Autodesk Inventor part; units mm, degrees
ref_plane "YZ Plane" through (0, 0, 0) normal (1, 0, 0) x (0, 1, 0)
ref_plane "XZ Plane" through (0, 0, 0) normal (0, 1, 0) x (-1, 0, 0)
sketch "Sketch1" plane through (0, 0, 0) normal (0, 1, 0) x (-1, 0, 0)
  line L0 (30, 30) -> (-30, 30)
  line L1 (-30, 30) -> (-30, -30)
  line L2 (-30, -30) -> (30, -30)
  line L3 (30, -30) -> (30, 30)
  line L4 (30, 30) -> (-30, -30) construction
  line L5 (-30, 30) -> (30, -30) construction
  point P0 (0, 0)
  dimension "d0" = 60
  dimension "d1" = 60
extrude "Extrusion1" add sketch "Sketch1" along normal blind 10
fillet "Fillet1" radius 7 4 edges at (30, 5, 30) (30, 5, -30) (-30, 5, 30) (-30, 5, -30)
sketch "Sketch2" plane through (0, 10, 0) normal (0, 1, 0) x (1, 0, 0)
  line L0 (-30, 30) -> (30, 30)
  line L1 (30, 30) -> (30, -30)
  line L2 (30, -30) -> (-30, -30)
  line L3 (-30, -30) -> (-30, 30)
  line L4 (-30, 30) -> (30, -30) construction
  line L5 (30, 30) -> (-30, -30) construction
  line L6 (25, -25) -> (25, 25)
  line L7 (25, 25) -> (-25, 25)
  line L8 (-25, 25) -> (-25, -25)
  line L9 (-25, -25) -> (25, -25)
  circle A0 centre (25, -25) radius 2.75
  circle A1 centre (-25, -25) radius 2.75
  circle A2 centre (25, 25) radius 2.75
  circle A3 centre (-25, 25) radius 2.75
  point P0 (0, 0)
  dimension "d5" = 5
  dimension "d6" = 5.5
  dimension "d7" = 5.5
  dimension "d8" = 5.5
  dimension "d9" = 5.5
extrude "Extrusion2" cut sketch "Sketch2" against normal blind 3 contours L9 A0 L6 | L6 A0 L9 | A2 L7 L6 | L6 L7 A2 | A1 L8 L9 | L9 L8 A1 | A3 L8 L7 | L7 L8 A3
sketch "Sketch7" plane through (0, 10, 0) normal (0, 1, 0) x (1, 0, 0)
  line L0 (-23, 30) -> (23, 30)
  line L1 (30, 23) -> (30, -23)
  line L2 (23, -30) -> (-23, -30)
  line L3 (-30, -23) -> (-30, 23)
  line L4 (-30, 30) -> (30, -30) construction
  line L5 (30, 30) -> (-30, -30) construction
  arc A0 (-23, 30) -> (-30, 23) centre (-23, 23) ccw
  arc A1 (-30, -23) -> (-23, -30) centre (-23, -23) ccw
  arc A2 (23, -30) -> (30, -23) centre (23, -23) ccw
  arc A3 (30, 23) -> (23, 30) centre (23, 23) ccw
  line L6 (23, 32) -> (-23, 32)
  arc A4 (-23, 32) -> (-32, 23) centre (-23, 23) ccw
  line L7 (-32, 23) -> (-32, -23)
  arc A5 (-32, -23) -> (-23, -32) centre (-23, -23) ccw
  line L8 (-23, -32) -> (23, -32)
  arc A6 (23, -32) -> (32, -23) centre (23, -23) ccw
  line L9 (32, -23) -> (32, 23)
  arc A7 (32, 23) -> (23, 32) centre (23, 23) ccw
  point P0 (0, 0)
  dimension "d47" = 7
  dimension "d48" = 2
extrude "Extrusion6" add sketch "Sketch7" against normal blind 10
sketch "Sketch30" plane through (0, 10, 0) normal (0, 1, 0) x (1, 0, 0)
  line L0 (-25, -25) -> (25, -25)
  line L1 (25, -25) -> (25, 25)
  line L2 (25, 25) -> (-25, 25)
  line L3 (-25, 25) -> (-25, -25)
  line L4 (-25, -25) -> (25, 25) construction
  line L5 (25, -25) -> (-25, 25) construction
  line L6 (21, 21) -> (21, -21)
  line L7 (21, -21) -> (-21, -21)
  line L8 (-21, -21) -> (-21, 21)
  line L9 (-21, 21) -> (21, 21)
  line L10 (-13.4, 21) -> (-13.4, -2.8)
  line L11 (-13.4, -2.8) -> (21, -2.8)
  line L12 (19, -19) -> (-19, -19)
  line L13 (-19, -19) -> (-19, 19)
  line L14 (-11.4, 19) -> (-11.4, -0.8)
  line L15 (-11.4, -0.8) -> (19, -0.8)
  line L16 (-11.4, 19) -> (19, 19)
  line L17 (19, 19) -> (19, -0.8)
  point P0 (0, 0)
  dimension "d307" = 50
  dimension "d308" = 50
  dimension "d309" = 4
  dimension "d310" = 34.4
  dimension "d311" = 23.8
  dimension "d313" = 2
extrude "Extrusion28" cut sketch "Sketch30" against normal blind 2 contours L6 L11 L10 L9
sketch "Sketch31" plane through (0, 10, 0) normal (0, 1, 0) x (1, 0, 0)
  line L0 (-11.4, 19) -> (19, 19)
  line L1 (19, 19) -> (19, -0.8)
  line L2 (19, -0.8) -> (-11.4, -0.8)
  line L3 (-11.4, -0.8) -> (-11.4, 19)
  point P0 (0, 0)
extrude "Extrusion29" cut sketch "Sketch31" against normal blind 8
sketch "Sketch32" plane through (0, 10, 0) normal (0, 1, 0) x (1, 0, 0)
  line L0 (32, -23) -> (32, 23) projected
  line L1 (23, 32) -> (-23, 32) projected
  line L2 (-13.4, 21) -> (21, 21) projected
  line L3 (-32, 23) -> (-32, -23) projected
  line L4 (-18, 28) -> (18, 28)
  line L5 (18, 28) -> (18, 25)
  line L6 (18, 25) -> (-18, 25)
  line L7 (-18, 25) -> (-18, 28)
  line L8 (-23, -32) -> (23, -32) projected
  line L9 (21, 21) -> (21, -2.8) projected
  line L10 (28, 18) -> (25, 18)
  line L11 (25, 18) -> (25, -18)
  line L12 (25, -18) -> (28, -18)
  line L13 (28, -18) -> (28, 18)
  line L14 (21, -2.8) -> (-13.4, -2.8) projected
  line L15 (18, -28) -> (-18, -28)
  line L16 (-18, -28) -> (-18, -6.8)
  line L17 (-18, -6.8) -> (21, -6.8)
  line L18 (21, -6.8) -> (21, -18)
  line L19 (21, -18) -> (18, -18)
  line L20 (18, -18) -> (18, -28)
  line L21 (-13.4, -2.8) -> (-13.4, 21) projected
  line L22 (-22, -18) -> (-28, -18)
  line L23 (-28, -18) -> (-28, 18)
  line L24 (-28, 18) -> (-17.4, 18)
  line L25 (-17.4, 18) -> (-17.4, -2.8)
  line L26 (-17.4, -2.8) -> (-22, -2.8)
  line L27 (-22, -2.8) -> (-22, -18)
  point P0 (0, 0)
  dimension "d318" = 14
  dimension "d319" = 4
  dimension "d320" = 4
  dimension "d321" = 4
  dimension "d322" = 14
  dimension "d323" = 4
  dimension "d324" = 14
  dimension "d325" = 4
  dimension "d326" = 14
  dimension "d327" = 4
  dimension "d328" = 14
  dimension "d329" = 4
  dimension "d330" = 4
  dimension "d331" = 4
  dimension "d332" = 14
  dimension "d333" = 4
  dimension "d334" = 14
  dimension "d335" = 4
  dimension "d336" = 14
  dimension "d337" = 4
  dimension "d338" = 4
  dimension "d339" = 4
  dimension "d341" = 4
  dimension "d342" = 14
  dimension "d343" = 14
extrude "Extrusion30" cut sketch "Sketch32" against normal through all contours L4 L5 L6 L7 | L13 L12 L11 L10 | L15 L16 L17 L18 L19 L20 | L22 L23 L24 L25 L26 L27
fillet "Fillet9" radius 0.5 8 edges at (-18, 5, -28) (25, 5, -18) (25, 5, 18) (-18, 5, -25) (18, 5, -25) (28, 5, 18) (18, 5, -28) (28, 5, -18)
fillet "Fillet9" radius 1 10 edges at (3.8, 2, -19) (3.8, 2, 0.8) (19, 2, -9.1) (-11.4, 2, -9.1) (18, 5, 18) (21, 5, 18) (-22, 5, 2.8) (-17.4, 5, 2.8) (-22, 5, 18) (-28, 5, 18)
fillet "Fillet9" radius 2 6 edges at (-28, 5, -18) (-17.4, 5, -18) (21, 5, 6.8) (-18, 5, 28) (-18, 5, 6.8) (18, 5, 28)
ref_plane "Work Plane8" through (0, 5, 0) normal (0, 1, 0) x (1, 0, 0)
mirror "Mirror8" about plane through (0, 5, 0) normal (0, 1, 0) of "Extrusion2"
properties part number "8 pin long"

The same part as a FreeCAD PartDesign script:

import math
import FreeCAD as App
import Part
import Sketcher
Q = App.Units.Quantity


def edges_at(feature, points):
    """Names of the edges that pass closest to the given points."""
    edges = feature.Shape.Edges
    near = lambda p: min(range(len(edges)), key=lambda i: edges[i].distToShape(Part.Vertex(*p))[0])
    return sorted({f"Edge{near(p) + 1}" for p in points})

doc = App.newDocument("Part")
params = doc.addObject("Spreadsheet::Sheet", "Params")
for row, (alias, value) in enumerate([
    ("sketch1_width", "60 mm"),
    ("pad1_length", "10 mm"),
    ("fillet_radius", "7 mm"),
    ("sketch2_diameter", "5.5 mm"),
    ("pocket1_length", "3 mm"),
    ("sketch3_radius", "7 mm"),
    ("sketch3_radius2", "9 mm"),
    ("sketch3_width", "46 mm"),
    ("pad2_length", "10 mm"),
    ("sketch4_width", "34.4 mm"),
    ("sketch4_height", "23.8 mm"),
    ("pocket2_length", "2 mm"),
    ("sketch5_width", "30.4 mm"),
    ("sketch5_height", "19.8 mm"),
    ("pocket3_length", "8 mm"),
    ("sketch6_width", "36 mm"),
    ("sketch6_width2", "3 mm"),
    ("sketch6_height", "10 mm"),
    ("sketch6_width3", "4.6 mm"),
    ("sketch6_height2", "11.2 mm"),
    ("fillet2_radius", "0.5 mm"),
    ("fillet3_radius", "1 mm"),
    ("fillet4_radius", "2 mm"),
], start=1):
    params.set(f"A{row}", alias)
    params.set(f"B{row}", "=" + value)
    params.setAlias(f"B{row}", alias)

body = doc.addObject("PartDesign::Body", "Body")

# Sketch on XZ plane
sketch1 = doc.addObject("Sketcher::SketchObject", "Sketch")
body.addObject(sketch1)
sketch1.AttachmentSupport = (doc.XZ_Plane, [""])
sketch1.MapMode = "FlatFace"
sketch1.addGeometry(Part.LineSegment(App.Vector(-30, -30, 0), App.Vector(-30, 30, 0)), False)
sketch1.addGeometry(Part.LineSegment(App.Vector(-30, 30, 0), App.Vector(30, 30, 0)), False)
sketch1.addGeometry(Part.LineSegment(App.Vector(30, 30, 0), App.Vector(30, -30, 0)), False)
sketch1.addGeometry(Part.LineSegment(App.Vector(30, -30, 0), App.Vector(-30, -30, 0)), False)
sketch1.addConstraint(Sketcher.Constraint("Coincident", 0, 2, 1, 1))
sketch1.addConstraint(Sketcher.Constraint("Coincident", 1, 2, 2, 1))
sketch1.addConstraint(Sketcher.Constraint("Coincident", 2, 2, 3, 1))
sketch1.addConstraint(Sketcher.Constraint("Coincident", 3, 2, 0, 1))
sketch1.addConstraint(Sketcher.Constraint("Vertical", 0))
sketch1.addConstraint(Sketcher.Constraint("Horizontal", 1))
sketch1.addConstraint(Sketcher.Constraint("Vertical", 2))
sketch1.addConstraint(Sketcher.Constraint("Horizontal", 3))
sketch1.addConstraint(Sketcher.Constraint("Symmetric", 0, 2, 2, 2, -1, 1))
sketch1.addConstraint(Sketcher.Constraint("Equal", 3, 0))
sketch1.addConstraint(Sketcher.Constraint("DistanceX", 1, 1, 1, 2, Q("60 mm")))
sketch1.setExpression("Constraints[10]", "Params.sketch1_width")
pad1 = doc.addObject("PartDesign::Pad", "Pad")
body.addObject(pad1)
pad1.Profile = sketch1
pad1.setExpression("Length", "Params.pad1_length")
pad1.Reversed = True
doc.recompute()

fillet = doc.addObject("PartDesign::Fillet", "Fillet")
body.addObject(fillet)
fillet.Base = (pad1, edges_at(pad1, [
    (30, 5, 30),
    (30, 5, -30),
    (-30, 5, 30),
    (-30, 5, -30),
]))
fillet.setExpression("Radius", "Params.fillet_radius")

# Sketch on XZ plane
sketch2 = doc.addObject("Sketcher::SketchObject", "Sketch001")
body.addObject(sketch2)
sketch2.AttachmentSupport = (doc.XZ_Plane, [""])
sketch2.MapMode = "FlatFace"
sketch2.AttachmentOffset = App.Placement(App.Vector(0, 0, -10), App.Rotation())
sketch2.addGeometry(Part.Circle(App.Vector(25, 25, 0), App.Vector(0, 0, 1), 2.8), False)
sketch2.addGeometry(Part.Circle(App.Vector(25, -25, 0), App.Vector(0, 0, 1), 2.8), False)
sketch2.addGeometry(Part.Circle(App.Vector(-25, 25, 0), App.Vector(0, 0, 1), 2.8), False)
sketch2.addGeometry(Part.Circle(App.Vector(-25, -25, 0), App.Vector(0, 0, 1), 2.8), False)
sketch2.addConstraint(Sketcher.Constraint("Equal", 0, 1))
sketch2.addConstraint(Sketcher.Constraint("Equal", 1, 2))
sketch2.addConstraint(Sketcher.Constraint("Equal", 2, 3))
sketch2.addConstraint(Sketcher.Constraint("Symmetric", 1, 3, 2, 3, -1, 1))
sketch2.addConstraint(Sketcher.Constraint("Symmetric", 0, 3, 3, 3, -1, 1))
sketch2.addConstraint(Sketcher.Constraint("Symmetric", 0, 3, 2, 3, -2))
sketch2.addConstraint(Sketcher.Constraint("Diameter", 0, Q("5.5 mm")))
sketch2.addConstraint(Sketcher.Constraint("DistanceX", -1, 1, 0, 3, Q("25 mm")))
sketch2.addConstraint(Sketcher.Constraint("DistanceY", -1, 1, 0, 3, Q("25 mm")))
sketch2.setExpression("Constraints[6]", "Params.sketch2_diameter")
pocket1 = doc.addObject("PartDesign::Pocket", "Pocket")
body.addObject(pocket1)
pocket1.Profile = sketch2
pocket1.setExpression("Length", "Params.pocket1_length")
pocket1.Reversed = True

# Sketch on XZ plane
sketch3 = doc.addObject("Sketcher::SketchObject", "Sketch002")
body.addObject(sketch3)
sketch3.AttachmentSupport = (doc.XZ_Plane, [""])
sketch3.MapMode = "FlatFace"
sketch3.AttachmentOffset = App.Placement(App.Vector(0, 0, -10), App.Rotation())
sketch3.addGeometry(Part.ArcOfCircle(Part.Circle(App.Vector(23, -23, 0), App.Vector(0, 0, 1), 9), math.radians(-90), math.radians(0)), False)
sketch3.addGeometry(Part.LineSegment(App.Vector(23, -32, 0), App.Vector(-23, -32, 0)), False)
sketch3.addGeometry(Part.ArcOfCircle(Part.Circle(App.Vector(-23, -23, 0), App.Vector(0, 0, 1), 9), math.radians(180), math.radians(270)), False)
sketch3.addGeometry(Part.LineSegment(App.Vector(-32, -23, 0), App.Vector(-32, 23, 0)), False)
sketch3.addGeometry(Part.ArcOfCircle(Part.Circle(App.Vector(-23, 23, 0), App.Vector(0, 0, 1), 9), math.radians(90), math.radians(180)), False)
sketch3.addGeometry(Part.LineSegment(App.Vector(-23, 32, 0), App.Vector(23, 32, 0)), False)
sketch3.addGeometry(Part.ArcOfCircle(Part.Circle(App.Vector(23, 23, 0), App.Vector(0, 0, 1), 9), math.radians(0), math.radians(90)), False)
sketch3.addGeometry(Part.LineSegment(App.Vector(32, 23, 0), App.Vector(32, -23, 0)), False)
sketch3.addGeometry(Part.ArcOfCircle(Part.Circle(App.Vector(-23, -23, 0), App.Vector(0, 0, 1), 7), math.radians(180), math.radians(270)), False)
sketch3.addGeometry(Part.LineSegment(App.Vector(-23, -30, 0), App.Vector(23, -30, 0)), False)
sketch3.addGeometry(Part.ArcOfCircle(Part.Circle(App.Vector(23, -23, 0), App.Vector(0, 0, 1), 7), math.radians(-90), math.radians(0)), False)
sketch3.addGeometry(Part.LineSegment(App.Vector(30, -23, 0), App.Vector(30, 23, 0)), False)
sketch3.addGeometry(Part.ArcOfCircle(Part.Circle(App.Vector(23, 23, 0), App.Vector(0, 0, 1), 7), math.radians(0), math.radians(90)), False)
sketch3.addGeometry(Part.LineSegment(App.Vector(23, 30, 0), App.Vector(-23, 30, 0)), False)
sketch3.addGeometry(Part.ArcOfCircle(Part.Circle(App.Vector(-23, 23, 0), App.Vector(0, 0, 1), 7), math.radians(90), math.radians(180)), False)
sketch3.addGeometry(Part.LineSegment(App.Vector(-30, 23, 0), App.Vector(-30, -23, 0)), False)
sketch3.addConstraint(Sketcher.Constraint("Tangent", 0, 1, 1, 1))
sketch3.addConstraint(Sketcher.Constraint("Tangent", 1, 2, 2, 2))
sketch3.addConstraint(Sketcher.Constraint("Tangent", 2, 1, 3, 1))
sketch3.addConstraint(Sketcher.Constraint("Tangent", 3, 2, 4, 2))
sketch3.addConstraint(Sketcher.Constraint("Tangent", 4, 1, 5, 1))
sketch3.addConstraint(Sketcher.Constraint("Tangent", 5, 2, 6, 2))
sketch3.addConstraint(Sketcher.Constraint("Tangent", 6, 1, 7, 1))
sketch3.addConstraint(Sketcher.Constraint("Tangent", 7, 2, 0, 2))
sketch3.addConstraint(Sketcher.Constraint("Tangent", 8, 2, 9, 1))
sketch3.addConstraint(Sketcher.Constraint("Tangent", 9, 2, 10, 1))
sketch3.addConstraint(Sketcher.Constraint("Tangent", 10, 2, 11, 1))
sketch3.addConstraint(Sketcher.Constraint("Tangent", 11, 2, 12, 1))
sketch3.addConstraint(Sketcher.Constraint("Tangent", 12, 2, 13, 1))
sketch3.addConstraint(Sketcher.Constraint("Tangent", 13, 2, 14, 1))
sketch3.addConstraint(Sketcher.Constraint("Tangent", 14, 2, 15, 1))
sketch3.addConstraint(Sketcher.Constraint("Tangent", 15, 2, 8, 1))
sketch3.addConstraint(Sketcher.Constraint("Horizontal", 1))
sketch3.addConstraint(Sketcher.Constraint("Vertical", 3))
sketch3.addConstraint(Sketcher.Constraint("Horizontal", 5))
sketch3.addConstraint(Sketcher.Constraint("Vertical", 7))
sketch3.addConstraint(Sketcher.Constraint("Horizontal", 9))
sketch3.addConstraint(Sketcher.Constraint("Vertical", 11))
sketch3.addConstraint(Sketcher.Constraint("Horizontal", 13))
sketch3.addConstraint(Sketcher.Constraint("Vertical", 15))
sketch3.addConstraint(Sketcher.Constraint("Coincident", 8, 3, 2, 3))
sketch3.addConstraint(Sketcher.Constraint("Coincident", 10, 3, 0, 3))
sketch3.addConstraint(Sketcher.Constraint("Coincident", 12, 3, 6, 3))
sketch3.addConstraint(Sketcher.Constraint("Equal", 0, 2))
sketch3.addConstraint(Sketcher.Constraint("Equal", 2, 4))
sketch3.addConstraint(Sketcher.Constraint("Equal", 4, 6))
sketch3.addConstraint(Sketcher.Constraint("Equal", 12, 14))
sketch3.addConstraint(Sketcher.Constraint("Symmetric", 0, 3, 4, 3, -1, 1))
sketch3.addConstraint(Sketcher.Constraint("Equal", 13, 3))
sketch3.addConstraint(Sketcher.Constraint("Radius", 8, Q("7 mm")))
sketch3.addConstraint(Sketcher.Constraint("Radius", 0, Q("9 mm")))
sketch3.addConstraint(Sketcher.Constraint("DistanceX", 1, 2, 1, 1, Q("46 mm")))
sketch3.setExpression("Constraints[33]", "Params.sketch3_radius")
sketch3.setExpression("Constraints[34]", "Params.sketch3_radius2")
sketch3.setExpression("Constraints[35]", "Params.sketch3_width")
pad2 = doc.addObject("PartDesign::Pad", "Pad001")
body.addObject(pad2)
pad2.Profile = sketch3
pad2.setExpression("Length", "Params.pad2_length")

# Sketch on XZ plane
sketch4 = doc.addObject("Sketcher::SketchObject", "Sketch003")
body.addObject(sketch4)
sketch4.AttachmentSupport = (doc.XZ_Plane, [""])
sketch4.MapMode = "FlatFace"
sketch4.AttachmentOffset = App.Placement(App.Vector(0, 0, -10), App.Rotation())
sketch4.addGeometry(Part.LineSegment(App.Vector(21, 3, 0), App.Vector(21, -21, 0)), False)
sketch4.addGeometry(Part.LineSegment(App.Vector(21, -21, 0), App.Vector(-13, -21, 0)), False)
sketch4.addGeometry(Part.LineSegment(App.Vector(-13, -21, 0), App.Vector(-13, 3, 0)), False)
sketch4.addGeometry(Part.LineSegment(App.Vector(-13, 3, 0), App.Vector(21, 3, 0)), False)
sketch4.addGeometry(Part.LineSegment(App.Vector(-11, 1, 0), App.Vector(-11, -19, 0)), False)
sketch4.addGeometry(Part.LineSegment(App.Vector(-11, -19, 0), App.Vector(19, -19, 0)), False)
sketch4.addGeometry(Part.LineSegment(App.Vector(19, -19, 0), App.Vector(19, 1, 0)), False)
sketch4.addGeometry(Part.LineSegment(App.Vector(19, 1, 0), App.Vector(-11, 1, 0)), False)
sketch4.addConstraint(Sketcher.Constraint("Coincident", 0, 2, 1, 1))
sketch4.addConstraint(Sketcher.Constraint("Coincident", 1, 2, 2, 1))
sketch4.addConstraint(Sketcher.Constraint("Coincident", 2, 2, 3, 1))
sketch4.addConstraint(Sketcher.Constraint("Coincident", 3, 2, 0, 1))
sketch4.addConstraint(Sketcher.Constraint("Coincident", 4, 2, 5, 1))
sketch4.addConstraint(Sketcher.Constraint("Coincident", 5, 2, 6, 1))
sketch4.addConstraint(Sketcher.Constraint("Coincident", 6, 2, 7, 1))
sketch4.addConstraint(Sketcher.Constraint("Coincident", 7, 2, 4, 1))
sketch4.addConstraint(Sketcher.Constraint("Vertical", 0))
sketch4.addConstraint(Sketcher.Constraint("Horizontal", 1))
sketch4.addConstraint(Sketcher.Constraint("Vertical", 2))
sketch4.addConstraint(Sketcher.Constraint("Horizontal", 3))
sketch4.addConstraint(Sketcher.Constraint("Vertical", 4))
sketch4.addConstraint(Sketcher.Constraint("Horizontal", 5))
sketch4.addConstraint(Sketcher.Constraint("Vertical", 6))
sketch4.addConstraint(Sketcher.Constraint("Horizontal", 7))
sketch4.addConstraint(Sketcher.Constraint("DistanceX", 1, 2, 1, 1, Q("34.4 mm")))
sketch4.addConstraint(Sketcher.Constraint("DistanceY", 0, 2, 0, 1, Q("23.8 mm")))
sketch4.addConstraint(Sketcher.Constraint("DistanceX", 1, 2, 4, 2, Q("2 mm")))
sketch4.addConstraint(Sketcher.Constraint("DistanceY", 1, 2, 4, 2, Q("2 mm")))
sketch4.addConstraint(Sketcher.Constraint("DistanceX", 5, 2, 0, 2, Q("2 mm")))
sketch4.addConstraint(Sketcher.Constraint("DistanceY", 6, 2, 3, 2, Q("2 mm")))
sketch4.addConstraint(Sketcher.Constraint("DistanceX", -1, 1, 0, 2, Q("21 mm")))
sketch4.addConstraint(Sketcher.Constraint("DistanceY", 0, 2, -1, 1, Q("21 mm")))
sketch4.setExpression("Constraints[16]", "Params.sketch4_width")
sketch4.setExpression("Constraints[17]", "Params.sketch4_height")
pocket2 = doc.addObject("PartDesign::Pocket", "Pocket001")
body.addObject(pocket2)
pocket2.Profile = sketch4
pocket2.setExpression("Length", "Params.pocket2_length")
pocket2.Reversed = True

# Sketch on XZ plane
sketch5 = doc.addObject("Sketcher::SketchObject", "Sketch004")
body.addObject(sketch5)
sketch5.AttachmentSupport = (doc.XZ_Plane, [""])
sketch5.MapMode = "FlatFace"
sketch5.AttachmentOffset = App.Placement(App.Vector(0, 0, -10), App.Rotation())
sketch5.addGeometry(Part.LineSegment(App.Vector(19, -19, 0), App.Vector(-11, -19, 0)), False)
sketch5.addGeometry(Part.LineSegment(App.Vector(-11, -19, 0), App.Vector(-11, 1, 0)), False)
sketch5.addGeometry(Part.LineSegment(App.Vector(-11, 1, 0), App.Vector(19, 1, 0)), False)
sketch5.addGeometry(Part.LineSegment(App.Vector(19, 1, 0), App.Vector(19, -19, 0)), False)
sketch5.addConstraint(Sketcher.Constraint("Coincident", 0, 2, 1, 1))
sketch5.addConstraint(Sketcher.Constraint("Coincident", 1, 2, 2, 1))
sketch5.addConstraint(Sketcher.Constraint("Coincident", 2, 2, 3, 1))
sketch5.addConstraint(Sketcher.Constraint("Coincident", 3, 2, 0, 1))
sketch5.addConstraint(Sketcher.Constraint("Horizontal", 0))
sketch5.addConstraint(Sketcher.Constraint("Vertical", 1))
sketch5.addConstraint(Sketcher.Constraint("Horizontal", 2))
sketch5.addConstraint(Sketcher.Constraint("Vertical", 3))
sketch5.addConstraint(Sketcher.Constraint("DistanceX", 0, 2, 0, 1, Q("30.4 mm")))
sketch5.addConstraint(Sketcher.Constraint("DistanceY", 1, 1, 1, 2, Q("19.8 mm")))
sketch5.addConstraint(Sketcher.Constraint("DistanceY", 0, 2, -1, 1, Q("19 mm")))
sketch5.addConstraint(Sketcher.Constraint("DistanceX", -1, 1, 2, 2, Q("19 mm")))
sketch5.setExpression("Constraints[8]", "Params.sketch5_width")
sketch5.setExpression("Constraints[9]", "Params.sketch5_height")
pocket3 = doc.addObject("PartDesign::Pocket", "Pocket002")
body.addObject(pocket3)
pocket3.Profile = sketch5
pocket3.setExpression("Length", "Params.pocket3_length")
pocket3.Reversed = True

# Sketch on XZ plane
sketch6 = doc.addObject("Sketcher::SketchObject", "Sketch005")
body.addObject(sketch6)
sketch6.AttachmentSupport = (doc.XZ_Plane, [""])
sketch6.MapMode = "FlatFace"
sketch6.AttachmentOffset = App.Placement(App.Vector(0, 0, -10), App.Rotation())
sketch6.addGeometry(Part.LineSegment(App.Vector(18, -28, 0), App.Vector(-18, -28, 0)), False)
sketch6.addGeometry(Part.LineSegment(App.Vector(-18, -28, 0), App.Vector(-18, -25, 0)), False)
sketch6.addGeometry(Part.LineSegment(App.Vector(-18, -25, 0), App.Vector(18, -25, 0)), False)
sketch6.addGeometry(Part.LineSegment(App.Vector(18, -25, 0), App.Vector(18, -28, 0)), False)
sketch6.addGeometry(Part.LineSegment(App.Vector(28, 18, 0), App.Vector(28, -18, 0)), False)
sketch6.addGeometry(Part.LineSegment(App.Vector(28, -18, 0), App.Vector(25, -18, 0)), False)
sketch6.addGeometry(Part.LineSegment(App.Vector(25, -18, 0), App.Vector(25, 18, 0)), False)
sketch6.addGeometry(Part.LineSegment(App.Vector(25, 18, 0), App.Vector(28, 18, 0)), False)
sketch6.addGeometry(Part.LineSegment(App.Vector(-18, 28, 0), App.Vector(18, 28, 0)), False)
sketch6.addGeometry(Part.LineSegment(App.Vector(18, 28, 0), App.Vector(18, 18, 0)), False)
sketch6.addGeometry(Part.LineSegment(App.Vector(18, 18, 0), App.Vector(21, 18, 0)), False)
sketch6.addGeometry(Part.LineSegment(App.Vector(21, 18, 0), App.Vector(21, 6.8, 0)), False)
sketch6.addGeometry(Part.LineSegment(App.Vector(21, 6.8, 0), App.Vector(-18, 6.8, 0)), False)
sketch6.addGeometry(Part.LineSegment(App.Vector(-18, 6.8, 0), App.Vector(-18, 28, 0)), False)
sketch6.addGeometry(Part.LineSegment(App.Vector(-28, 18, 0), App.Vector(-22, 18, 0)), False)
sketch6.addGeometry(Part.LineSegment(App.Vector(-22, 18, 0), App.Vector(-22, 2.8, 0)), False)
sketch6.addGeometry(Part.LineSegment(App.Vector(-22, 2.8, 0), App.Vector(-17.4, 2.8, 0)), False)
sketch6.addGeometry(Part.LineSegment(App.Vector(-17.4, 2.8, 0), App.Vector(-17.4, -18, 0)), False)
sketch6.addGeometry(Part.LineSegment(App.Vector(-17.4, -18, 0), App.Vector(-28, -18, 0)), False)
sketch6.addGeometry(Part.LineSegment(App.Vector(-28, -18, 0), App.Vector(-28, 18, 0)), False)
sketch6.addConstraint(Sketcher.Constraint("Coincident", 0, 2, 1, 1))
sketch6.addConstraint(Sketcher.Constraint("Coincident", 1, 2, 2, 1))
sketch6.addConstraint(Sketcher.Constraint("Coincident", 2, 2, 3, 1))
sketch6.addConstraint(Sketcher.Constraint("Coincident", 3, 2, 0, 1))
sketch6.addConstraint(Sketcher.Constraint("Coincident", 4, 2, 5, 1))
sketch6.addConstraint(Sketcher.Constraint("Coincident", 5, 2, 6, 1))
sketch6.addConstraint(Sketcher.Constraint("Coincident", 6, 2, 7, 1))
sketch6.addConstraint(Sketcher.Constraint("Coincident", 7, 2, 4, 1))
sketch6.addConstraint(Sketcher.Constraint("Coincident", 8, 2, 9, 1))
sketch6.addConstraint(Sketcher.Constraint("Coincident", 9, 2, 10, 1))
sketch6.addConstraint(Sketcher.Constraint("Coincident", 10, 2, 11, 1))
sketch6.addConstraint(Sketcher.Constraint("Coincident", 11, 2, 12, 1))
sketch6.addConstraint(Sketcher.Constraint("Coincident", 12, 2, 13, 1))
sketch6.addConstraint(Sketcher.Constraint("Coincident", 13, 2, 8, 1))
sketch6.addConstraint(Sketcher.Constraint("Coincident", 14, 2, 15, 1))
sketch6.addConstraint(Sketcher.Constraint("Coincident", 15, 2, 16, 1))
sketch6.addConstraint(Sketcher.Constraint("Coincident", 16, 2, 17, 1))
sketch6.addConstraint(Sketcher.Constraint("Coincident", 17, 2, 18, 1))
sketch6.addConstraint(Sketcher.Constraint("Coincident", 18, 2, 19, 1))
sketch6.addConstraint(Sketcher.Constraint("Coincident", 19, 2, 14, 1))
sketch6.addConstraint(Sketcher.Constraint("Horizontal", 0))
sketch6.addConstraint(Sketcher.Constraint("Vertical", 1))
sketch6.addConstraint(Sketcher.Constraint("Horizontal", 2))
sketch6.addConstraint(Sketcher.Constraint("Vertical", 3))
sketch6.addConstraint(Sketcher.Constraint("Vertical", 4))
sketch6.addConstraint(Sketcher.Constraint("Horizontal", 5))
sketch6.addConstraint(Sketcher.Constraint("Vertical", 6))
sketch6.addConstraint(Sketcher.Constraint("Horizontal", 7))
sketch6.addConstraint(Sketcher.Constraint("Horizontal", 8))
sketch6.addConstraint(Sketcher.Constraint("Vertical", 9))
sketch6.addConstraint(Sketcher.Constraint("Horizontal", 10))
sketch6.addConstraint(Sketcher.Constraint("Vertical", 11))
sketch6.addConstraint(Sketcher.Constraint("Horizontal", 12))
sketch6.addConstraint(Sketcher.Constraint("Vertical", 13))
sketch6.addConstraint(Sketcher.Constraint("Horizontal", 14))
sketch6.addConstraint(Sketcher.Constraint("Vertical", 15))
sketch6.addConstraint(Sketcher.Constraint("Horizontal", 16))
sketch6.addConstraint(Sketcher.Constraint("Vertical", 17))
sketch6.addConstraint(Sketcher.Constraint("Horizontal", 18))
sketch6.addConstraint(Sketcher.Constraint("Vertical", 19))
sketch6.addConstraint(Sketcher.Constraint("Symmetric", 0, 2, 8, 2, -1, 1))
sketch6.addConstraint(Sketcher.Constraint("Symmetric", 7, 2, 18, 2, -1, 1))
sketch6.addConstraint(Sketcher.Constraint("Horizontal", 7, 2, 9, 2))
sketch6.addConstraint(Sketcher.Constraint("Horizontal", 10, 2, 14, 2))
sketch6.addConstraint(Sketcher.Constraint("Horizontal", 5, 2, 17, 2))
sketch6.addConstraint(Sketcher.Constraint("Vertical", 3, 2, 8, 2))
sketch6.addConstraint(Sketcher.Constraint("Vertical", 1, 2, 12, 2))
sketch6.addConstraint(Sketcher.Constraint("Equal", 7, 10))
sketch6.addConstraint(Sketcher.Constraint("Equal", 10, 1))
sketch6.addConstraint(Sketcher.Constraint("Equal", 8, 4))
sketch6.addConstraint(Sketcher.Constraint("DistanceX", 10, 2, 6, 2, Q("4 mm")))
sketch6.addConstraint(Sketcher.Constraint("DistanceX", 14, 2, 13, 2, Q("4 mm")))
sketch6.addConstraint(Sketcher.Constraint("DistanceY", 15, 2, 12, 2, Q("4 mm")))
sketch6.addConstraint(Sketcher.Constraint("DistanceX", 0, 2, 0, 1, Q("36 mm")))
sketch6.addConstraint(Sketcher.Constraint("DistanceX", 5, 2, 5, 1, Q("3 mm")))
sketch6.addConstraint(Sketcher.Constraint("DistanceY", 9, 2, 9, 1, Q("10 mm")))
sketch6.addConstraint(Sketcher.Constraint("DistanceX", 16, 1, 16, 2, Q("4.6 mm")))
sketch6.addConstraint(Sketcher.Constraint("DistanceY", 11, 2, 11, 1, Q("11.2 mm")))
sketch6.setExpression("Constraints[53]", "Params.sketch6_width")
sketch6.setExpression("Constraints[54]", "Params.sketch6_width2")
sketch6.setExpression("Constraints[55]", "Params.sketch6_height")
sketch6.setExpression("Constraints[56]", "Params.sketch6_width3")
sketch6.setExpression("Constraints[57]", "Params.sketch6_height2")
pocket4 = doc.addObject("PartDesign::Pocket", "Pocket003")
body.addObject(pocket4)
pocket4.Profile = sketch6
pocket4.Type = "ThroughAll"
pocket4.Reversed = True
doc.recompute()

fillet2 = doc.addObject("PartDesign::Fillet", "Fillet001")
body.addObject(fillet2)
fillet2.Base = (pocket4, edges_at(pocket4, [
    (-18, 5, -28),
    (25, 5, -18),
    (25, 5, 18),
    (-18, 5, -25),
    (18, 5, -25),
    (28, 5, 18),
    (18, 5, -28),
    (28, 5, -18),
]))
fillet2.setExpression("Radius", "Params.fillet2_radius")
doc.recompute()

fillet3 = doc.addObject("PartDesign::Fillet", "Fillet002")
body.addObject(fillet3)
fillet3.Base = (fillet2, edges_at(fillet2, [
    (3.8, 2, -19),
    (3.8, 2, 0.8),
    (19, 2, -9.1),
    (-11.4, 2, -9.1),
    (18, 5, 18),
    (21, 5, 18),
    (-22, 5, 2.8),
    (-17.4, 5, 2.8),
    (-22, 5, 18),
    (-28, 5, 18),
]))
fillet3.setExpression("Radius", "Params.fillet3_radius")
doc.recompute()

fillet4 = doc.addObject("PartDesign::Fillet", "Fillet003")
body.addObject(fillet4)
fillet4.Base = (fillet3, edges_at(fillet3, [
    (-28, 5, -18),
    (-17.4, 5, -18),
    (21, 5, 6.8),
    (-18, 5, 28),
    (-18, 5, 6.8),
    (18, 5, 28),
]))
fillet4.setExpression("Radius", "Params.fillet4_radius")
doc.recompute()

datumplane = doc.addObject("PartDesign::Plane", "DatumPlane")
body.addObject(datumplane)
datumplane.AttachmentSupport = (doc.XZ_Plane, [""])
datumplane.MapMode = "FlatFace"
datumplane.AttachmentOffset = App.Placement(App.Vector(0, 0, -5), App.Rotation())
mirrored = doc.addObject("PartDesign::Mirrored", "Mirrored")
body.addObject(mirrored)
mirrored.Originals = [pocket1]
mirrored.MirrorPlane = (datumplane, [""])
body.Tip = mirrored

doc.recompute()
